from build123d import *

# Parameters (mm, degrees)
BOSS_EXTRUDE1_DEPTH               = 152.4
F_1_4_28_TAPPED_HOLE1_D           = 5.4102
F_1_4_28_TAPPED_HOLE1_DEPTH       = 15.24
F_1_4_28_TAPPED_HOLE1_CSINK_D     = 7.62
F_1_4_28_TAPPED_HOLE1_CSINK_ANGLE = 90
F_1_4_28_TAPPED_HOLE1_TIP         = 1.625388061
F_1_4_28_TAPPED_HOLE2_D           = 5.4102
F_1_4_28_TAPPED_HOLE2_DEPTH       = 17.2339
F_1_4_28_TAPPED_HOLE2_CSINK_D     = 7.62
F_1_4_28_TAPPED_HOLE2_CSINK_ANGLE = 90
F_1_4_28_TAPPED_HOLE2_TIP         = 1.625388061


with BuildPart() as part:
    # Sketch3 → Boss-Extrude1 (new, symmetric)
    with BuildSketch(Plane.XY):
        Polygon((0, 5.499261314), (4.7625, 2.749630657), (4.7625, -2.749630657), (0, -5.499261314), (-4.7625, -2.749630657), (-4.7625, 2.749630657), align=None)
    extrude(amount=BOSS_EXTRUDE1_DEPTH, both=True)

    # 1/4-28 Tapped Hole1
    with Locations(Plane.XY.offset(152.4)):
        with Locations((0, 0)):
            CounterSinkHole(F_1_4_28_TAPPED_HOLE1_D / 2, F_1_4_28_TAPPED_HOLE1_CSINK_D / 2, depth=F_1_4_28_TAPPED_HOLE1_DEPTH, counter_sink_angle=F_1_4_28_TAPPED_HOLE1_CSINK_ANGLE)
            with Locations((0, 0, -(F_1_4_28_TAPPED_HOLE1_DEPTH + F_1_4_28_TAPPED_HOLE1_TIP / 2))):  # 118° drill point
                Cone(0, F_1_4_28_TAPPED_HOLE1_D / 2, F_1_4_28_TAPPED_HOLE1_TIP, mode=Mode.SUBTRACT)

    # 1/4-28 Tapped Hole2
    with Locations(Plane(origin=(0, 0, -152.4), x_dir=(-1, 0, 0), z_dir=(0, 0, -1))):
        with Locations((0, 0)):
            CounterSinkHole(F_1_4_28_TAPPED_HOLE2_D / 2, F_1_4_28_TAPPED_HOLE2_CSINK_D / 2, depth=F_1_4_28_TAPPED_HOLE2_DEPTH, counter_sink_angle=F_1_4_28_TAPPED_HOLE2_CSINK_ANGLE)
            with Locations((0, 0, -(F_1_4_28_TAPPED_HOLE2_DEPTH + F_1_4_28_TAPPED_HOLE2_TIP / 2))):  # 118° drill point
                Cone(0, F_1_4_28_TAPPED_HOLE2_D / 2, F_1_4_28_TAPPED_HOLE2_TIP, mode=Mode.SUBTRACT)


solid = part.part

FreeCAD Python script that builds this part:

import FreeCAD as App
import Part
import Sketcher

V = App.Vector
Q = App.Units.Quantity


def add_polygon(sketch, points):
    """Adds a closed chain of lines whose ends are joined by coincident constraints."""
    first, n = sketch.GeometryCount, len(points)
    for a, b in zip(points, points[1:] + points[:1]):
        sketch.addGeometry(Part.LineSegment(App.Vector(*a, 0), App.Vector(*b, 0)), False)
    for i in range(n):
        sketch.addConstraint(Sketcher.Constraint("Coincident", first + i, 2, first + (i + 1) % n, 1))

doc = App.newDocument("Part")
params = doc.addObject("Spreadsheet::Sheet", "Params")
for row, (alias, value) in enumerate([
    ("pad1_length", "12 in"),
    ("sketch2_diameter", "0.213 in"),
    ("hole_diameter", "0.213 in"),
    ("hole_depth", "0.6 in"),
    ("hole_csink_diameter", "0.3 in"),
    ("sketch3_diameter", "0.213 in"),
    ("hole2_diameter", "0.213 in"),
    ("hole2_depth", "0.6785 in"),
    ("hole2_csink_diameter", "0.3 in"),
], start=1):
    params.set(f"A{row}", alias)
    params.set(f"B{row}", "=" + value)
    params.setAlias(f"B{row}", alias)

body = doc.addObject("PartDesign::Body", "Body")

sketch1 = body.newObject("Sketcher::SketchObject", "Sketch")
sketch1.AttachmentSupport = (doc.getObject("XY_Plane"), [""])
sketch1.MapMode = "FlatFace"
add_polygon(sketch1, [(5, 3), (0, 5), (-5, 3), (-5, -3), (0, -5), (5, -3)])
sketch1.addConstraint([
    Sketcher.Constraint("Vertical", 2),
    Sketcher.Constraint("Vertical", 5),
    Sketcher.Constraint("Symmetric", 0, 2, 3, 2, -1, 1),
    Sketcher.Constraint("Symmetric", 1, 2, 4, 2, -1, 1),
    Sketcher.Constraint("PointOnObject", 0, 2, -2),
    Sketcher.Constraint("Parallel", 0, 3),
    Sketcher.Constraint("Horizontal", 2, 2, 4, 2),
    Sketcher.Constraint("Angle", 0, Q("150 deg")),
    Sketcher.Constraint("DistanceX", 1, 2, -1, 1, Q("0.1875 in")),
    Sketcher.Constraint("DistanceY", 2, 2, 2, 1, Q("5.499261 mm")),
])
pad1 = body.newObject("PartDesign::Pad", "Pad")
pad1.Profile = sketch1
pad1.setExpression("Length", "Params.pad1_length")
pad1.Midplane = True

sketch2 = body.newObject("Sketcher::SketchObject", "Sketch001")
sketch2.AttachmentSupport = (doc.getObject("XY_Plane"), [""])
sketch2.MapMode = "FlatFace"
sketch2.AttachmentOffset = App.Placement(V(0, 0, 6 * 25.4), App.Rotation())
sketch2.addGeometry(Part.Circle(V(0, 0, 0), V(0, 0, 1), 2.7), False)
sketch2.addConstraint([
    Sketcher.Constraint("Coincident", 0, 3, -1, 1),
    Sketcher.Constraint("Diameter", 0, Q("0.213 in")),
])
sketch2.setExpression("Constraints[1]", "Params.sketch2_diameter")
doc.recompute()
hole = body.newObject("PartDesign::Hole", "Hole")
hole.Profile = sketch2
hole.ThreadType = "None"
hole.setExpression("Diameter", "Params.hole_diameter")
hole.DepthType = "Dimension"
hole.setExpression("Depth", "Params.hole_depth")
hole.DrillPoint = "Angled"
hole.DrillPointAngle = 118
hole.HoleCutType = "Countersink"
hole.setExpression("HoleCutDiameter", "Params.hole_csink_diameter")
hole.HoleCutCountersinkAngle = 90

sketch3 = body.newObject("Sketcher::SketchObject", "Sketch002")
sketch3.AttachmentSupport = (doc.getObject("XY_Plane"), [""])
sketch3.MapMode = "FlatFace"
sketch3.AttachmentOffset = App.Placement(V(0, 0, -6 * 25.4), App.Rotation())
sketch3.addGeometry(Part.Circle(V(0, 0, 0), V(0, 0, 1), 2.7), False)
sketch3.addConstraint([
    Sketcher.Constraint("Coincident", 0, 3, -1, 1),
    Sketcher.Constraint("Diameter", 0, Q("0.213 in")),
])
sketch3.setExpression("Constraints[1]", "Params.sketch3_diameter")
doc.recompute()
hole2 = body.newObject("PartDesign::Hole", "Hole001")
hole2.Profile = sketch3
hole2.ThreadType = "None"
hole2.setExpression("Diameter", "Params.hole2_diameter")
hole2.DepthType = "Dimension"
hole2.setExpression("Depth", "Params.hole2_depth")
hole2.DrillPoint = "Angled"
hole2.DrillPointAngle = 118
hole2.HoleCutType = "Countersink"
hole2.setExpression("HoleCutDiameter", "Params.hole2_csink_diameter")
hole2.HoleCutCountersinkAngle = 90
hole2.Reversed = True

doc.recompute()
